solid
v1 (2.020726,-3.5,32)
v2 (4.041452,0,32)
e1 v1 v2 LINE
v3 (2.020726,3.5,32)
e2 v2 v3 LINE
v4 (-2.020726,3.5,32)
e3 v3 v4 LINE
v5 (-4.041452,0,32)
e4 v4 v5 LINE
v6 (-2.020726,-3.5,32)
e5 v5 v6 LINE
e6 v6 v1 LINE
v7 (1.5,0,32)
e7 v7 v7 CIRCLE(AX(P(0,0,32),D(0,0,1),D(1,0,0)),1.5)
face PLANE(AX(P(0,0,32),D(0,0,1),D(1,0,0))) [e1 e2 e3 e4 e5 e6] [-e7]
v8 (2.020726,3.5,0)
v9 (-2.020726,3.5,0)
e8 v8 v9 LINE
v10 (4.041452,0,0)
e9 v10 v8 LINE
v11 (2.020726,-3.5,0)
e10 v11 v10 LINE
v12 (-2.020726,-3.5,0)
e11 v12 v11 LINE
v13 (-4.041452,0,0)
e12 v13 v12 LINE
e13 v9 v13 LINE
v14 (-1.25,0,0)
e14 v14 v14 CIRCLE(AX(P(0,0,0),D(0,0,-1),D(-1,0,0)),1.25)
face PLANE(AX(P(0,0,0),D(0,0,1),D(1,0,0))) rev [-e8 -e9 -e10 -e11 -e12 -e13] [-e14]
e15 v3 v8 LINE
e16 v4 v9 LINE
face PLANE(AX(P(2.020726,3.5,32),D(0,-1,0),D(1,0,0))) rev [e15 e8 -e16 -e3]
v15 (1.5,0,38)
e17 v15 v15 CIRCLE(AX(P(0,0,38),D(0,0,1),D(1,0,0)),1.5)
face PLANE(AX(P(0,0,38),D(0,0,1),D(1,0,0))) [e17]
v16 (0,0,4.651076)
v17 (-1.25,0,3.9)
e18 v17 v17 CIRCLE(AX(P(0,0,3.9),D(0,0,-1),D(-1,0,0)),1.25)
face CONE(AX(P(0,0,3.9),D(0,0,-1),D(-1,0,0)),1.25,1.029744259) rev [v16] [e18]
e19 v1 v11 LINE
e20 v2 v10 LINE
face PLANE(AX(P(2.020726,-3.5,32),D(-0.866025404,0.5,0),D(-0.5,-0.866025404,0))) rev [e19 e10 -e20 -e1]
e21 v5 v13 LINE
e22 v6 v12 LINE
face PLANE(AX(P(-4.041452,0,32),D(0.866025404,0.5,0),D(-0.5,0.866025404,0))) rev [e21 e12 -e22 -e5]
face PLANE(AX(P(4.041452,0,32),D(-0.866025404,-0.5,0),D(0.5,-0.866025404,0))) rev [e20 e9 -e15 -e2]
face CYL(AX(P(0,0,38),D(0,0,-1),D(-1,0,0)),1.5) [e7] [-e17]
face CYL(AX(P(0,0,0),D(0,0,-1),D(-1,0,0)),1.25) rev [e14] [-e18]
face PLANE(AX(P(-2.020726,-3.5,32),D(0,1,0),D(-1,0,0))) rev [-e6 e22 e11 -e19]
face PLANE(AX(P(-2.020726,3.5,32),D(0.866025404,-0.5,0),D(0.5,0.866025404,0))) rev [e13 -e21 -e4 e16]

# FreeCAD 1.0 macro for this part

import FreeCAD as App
import Part
import Sketcher
Q = App.Units.Quantity


def add_polygon(sketch, points):
    """Adds a closed chain of lines whose ends are joined by coincident constraints."""
    first, n = sketch.GeometryCount, len(points)
    for a, b in zip(points, points[1:] + points[:1]):
        sketch.addGeometry(Part.LineSegment(App.Vector(*a, 0), App.Vector(*b, 0)), False)
    for i in range(n):
        sketch.addConstraint(Sketcher.Constraint("Coincident", first + i, 2, first + (i + 1) % n, 1))

doc = App.newDocument("Part")
body = doc.addObject("PartDesign::Body", "Body")

# Sketch on XY plane
sketch1 = doc.addObject("Sketcher::SketchObject", "Sketch")
body.addObject(sketch1)
sketch1.AttachmentSupport = (doc.XY_Plane, [""])
sketch1.MapMode = "FlatFace"
add_polygon(sketch1, [(4, 0), (2, 3.5), (-2, 3.5), (-4, 0), (-2, -3.5), (2, -3.5)])  # lines 0-5
sketch1.addConstraint([
    Sketcher.Constraint("Horizontal", 1),
    Sketcher.Constraint("Horizontal", 4),
    Sketcher.Constraint("Symmetric", 0, 2, 3, 2, -1, 1),
    Sketcher.Constraint("Symmetric", 2, 2, 5, 2, -1, 1),
    Sketcher.Constraint("PointOnObject", 2, 2, -1),
    Sketcher.Constraint("Parallel", 2, 5),
    Sketcher.Constraint("Vertical", 1, 2, 3, 2),
    Sketcher.Constraint("Angle", 0, Q("120 deg")),
    Sketcher.Constraint("DistanceY", 3, 2, 1, 2, Q("7 mm")),
    Sketcher.Constraint("DistanceX", 1, 2, 1, 1, Q("4.041452 mm")),
])
pad1 = doc.addObject("PartDesign::Pad", "Pad")
body.addObject(pad1)
pad1.Profile = sketch1
pad1.Length = 32

# Sketch on XY plane
sketch2 = doc.addObject("Sketcher::SketchObject", "Sketch001")
body.addObject(sketch2)
sketch2.AttachmentSupport = (doc.XY_Plane, [""])
sketch2.MapMode = "FlatFace"
sketch2.AttachmentOffset = App.Placement(App.Vector(0, 0, 32), App.Rotation())
sketch2.addGeometry(Part.Circle(App.Vector(0, 0, 0), App.Vector(0, 0, 1), 1.5), False)
sketch2.addConstraint([
    Sketcher.Constraint("Coincident", 0, 3, -1, 1),
    Sketcher.Constraint("Diameter", 0, Q("3 mm")),
])
pad2 = doc.addObject("PartDesign::Pad", "Pad001")
body.addObject(pad2)
pad2.Profile = sketch2
pad2.Length = 6

# Sketch on XY plane
sketch3 = doc.addObject("Sketcher::SketchObject", "Sketch002")
body.addObject(sketch3)
sketch3.AttachmentSupport = (doc.XY_Plane, [""])
sketch3.MapMode = "FlatFace"
sketch3.addGeometry(Part.Circle(App.Vector(0, 0, 0), App.Vector(0, 0, 1), 1.2), False)
sketch3.addConstraint([
    Sketcher.Constraint("Coincident", 0, 3, -1, 1),
    Sketcher.Constraint("Diameter", 0, Q("2.5 mm")),
])
doc.recompute()
hole = doc.addObject("PartDesign::Hole", "Hole")
body.addObject(hole)
hole.Profile = sketch3
hole.ThreadType = "None"
hole.Diameter = 2.5
hole.DepthType = "Dimension"
hole.Depth = 3.9
hole.DrillPoint = "Angled"
hole.DrillPointAngle = 118
hole.Reversed = True

doc.recompute()
